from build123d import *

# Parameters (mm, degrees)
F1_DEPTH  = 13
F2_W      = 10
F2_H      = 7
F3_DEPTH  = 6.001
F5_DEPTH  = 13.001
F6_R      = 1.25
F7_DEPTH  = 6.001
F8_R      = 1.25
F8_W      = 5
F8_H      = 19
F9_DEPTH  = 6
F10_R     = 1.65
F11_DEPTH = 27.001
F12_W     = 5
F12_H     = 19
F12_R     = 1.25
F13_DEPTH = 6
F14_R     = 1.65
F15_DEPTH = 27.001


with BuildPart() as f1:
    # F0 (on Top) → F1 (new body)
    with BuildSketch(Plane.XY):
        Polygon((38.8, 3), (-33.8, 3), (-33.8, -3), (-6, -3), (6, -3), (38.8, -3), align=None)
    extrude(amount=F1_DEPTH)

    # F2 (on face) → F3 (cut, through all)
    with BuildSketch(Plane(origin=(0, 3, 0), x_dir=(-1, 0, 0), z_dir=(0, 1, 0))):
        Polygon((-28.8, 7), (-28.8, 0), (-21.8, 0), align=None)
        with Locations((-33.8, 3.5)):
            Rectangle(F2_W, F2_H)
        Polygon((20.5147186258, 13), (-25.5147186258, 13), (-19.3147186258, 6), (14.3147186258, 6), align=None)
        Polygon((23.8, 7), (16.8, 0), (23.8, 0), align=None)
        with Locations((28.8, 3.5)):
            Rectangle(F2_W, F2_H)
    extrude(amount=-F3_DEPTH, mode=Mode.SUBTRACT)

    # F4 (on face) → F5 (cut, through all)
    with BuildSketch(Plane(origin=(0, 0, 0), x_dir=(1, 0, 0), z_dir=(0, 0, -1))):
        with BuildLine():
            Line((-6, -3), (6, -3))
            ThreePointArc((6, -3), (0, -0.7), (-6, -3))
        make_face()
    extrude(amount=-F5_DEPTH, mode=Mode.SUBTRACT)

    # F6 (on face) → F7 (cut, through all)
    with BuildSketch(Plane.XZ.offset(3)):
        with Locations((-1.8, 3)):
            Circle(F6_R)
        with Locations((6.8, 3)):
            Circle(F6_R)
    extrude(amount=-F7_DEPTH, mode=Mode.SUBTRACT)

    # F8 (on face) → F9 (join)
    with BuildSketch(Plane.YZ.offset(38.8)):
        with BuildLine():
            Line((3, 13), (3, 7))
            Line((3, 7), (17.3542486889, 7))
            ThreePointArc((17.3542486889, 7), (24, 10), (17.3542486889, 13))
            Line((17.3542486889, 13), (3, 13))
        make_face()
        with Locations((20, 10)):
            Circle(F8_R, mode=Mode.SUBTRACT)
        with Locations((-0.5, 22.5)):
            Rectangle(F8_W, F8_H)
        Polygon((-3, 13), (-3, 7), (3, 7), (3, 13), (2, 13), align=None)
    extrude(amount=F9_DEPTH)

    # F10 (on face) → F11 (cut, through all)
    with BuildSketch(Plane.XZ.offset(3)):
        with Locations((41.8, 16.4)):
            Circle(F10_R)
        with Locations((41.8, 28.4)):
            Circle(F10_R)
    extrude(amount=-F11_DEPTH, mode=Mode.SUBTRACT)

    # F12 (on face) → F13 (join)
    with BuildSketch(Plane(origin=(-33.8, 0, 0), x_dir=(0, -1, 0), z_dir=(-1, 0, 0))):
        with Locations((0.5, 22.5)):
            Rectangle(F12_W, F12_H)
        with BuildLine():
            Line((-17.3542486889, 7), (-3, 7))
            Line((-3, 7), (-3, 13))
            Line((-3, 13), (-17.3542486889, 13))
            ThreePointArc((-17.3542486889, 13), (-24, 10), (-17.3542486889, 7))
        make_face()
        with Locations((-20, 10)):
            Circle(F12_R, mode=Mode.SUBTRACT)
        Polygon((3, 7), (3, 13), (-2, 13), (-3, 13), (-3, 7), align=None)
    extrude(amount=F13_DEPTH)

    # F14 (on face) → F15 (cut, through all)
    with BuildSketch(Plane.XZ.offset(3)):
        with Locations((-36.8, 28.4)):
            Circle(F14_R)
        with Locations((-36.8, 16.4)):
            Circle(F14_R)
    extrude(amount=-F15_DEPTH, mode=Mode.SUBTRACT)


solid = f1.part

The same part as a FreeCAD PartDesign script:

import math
import FreeCAD as App
import Part
import Sketcher

V = App.Vector
Q = App.Units.Quantity


def add_polygon(sketch, points):
    """Adds a closed chain of lines whose ends are joined by coincident constraints."""
    first, n = sketch.GeometryCount, len(points)
    for a, b in zip(points, points[1:] + points[:1]):
        sketch.addGeometry(Part.LineSegment(App.Vector(*a, 0), App.Vector(*b, 0)), False)
    for i in range(n):
        sketch.addConstraint(Sketcher.Constraint("Coincident", first + i, 2, first + (i + 1) % n, 1))

doc = App.newDocument("Part")
params = doc.addObject("Spreadsheet::Sheet", "Params")
for row, (alias, value) in enumerate([
    ("sketch1_height", "6 mm"),
    ("sketch1_width", "72.6 mm"),
    ("pad1_length", "13 mm"),
    ("sketch2_width", "10 mm"),
    ("sketch2_width2", "17 mm"),
    ("sketch3_width", "12 mm"),
    ("sketch4_diameter", "2.5 mm"),
    ("sketch5_radius", "4 mm"),
    ("sketch5_diameter", "2.5 mm"),
    ("sketch5_width", "5 mm"),
    ("sketch5_height", "19 mm"),
    ("sketch5_height2", "25 mm"),
    ("pad2_length", "6 mm"),
    ("sketch6_diameter", "3.3 mm"),
    ("sketch7_radius", "4 mm"),
    ("sketch7_diameter", "2.5 mm"),
    ("sketch7_width", "5 mm"),
    ("sketch7_height", "19 mm"),
    ("sketch7_height2", "25 mm"),
    ("pad3_length", "6 mm"),
    ("sketch8_diameter", "3.3 mm"),
], start=1):
    params.set(f"A{row}", alias)
    params.set(f"B{row}", "=" + value)
    params.setAlias(f"B{row}", alias)

body = doc.addObject("PartDesign::Body", "Body")

# Sketch on XY plane
sketch1 = doc.addObject("Sketcher::SketchObject", "Sketch")
body.addObject(sketch1)
sketch1.AttachmentSupport = (doc.XY_Plane, [""])
sketch1.MapMode = "FlatFace"
add_polygon(sketch1, [(38.8, 3), (-33.8, 3), (-33.8, -3), (38.8, -3)])  # lines 0-3
sketch1.addConstraint(Sketcher.Constraint("Horizontal", 0))
sketch1.addConstraint(Sketcher.Constraint("Vertical", 1))
sketch1.addConstraint(Sketcher.Constraint("Horizontal", 2))
sketch1.addConstraint(Sketcher.Constraint("Vertical", 3))
sketch1.addConstraint(Sketcher.Constraint("DistanceY", 1, 2, 1, 1, Q("6 mm")))
sketch1.addConstraint(Sketcher.Constraint("DistanceX", 0, 2, 0, 1, Q("72.6 mm")))
sketch1.addConstraint(Sketcher.Constraint("DistanceY", -1, 1, 0, 2, Q("3 mm")))
sketch1.addConstraint(Sketcher.Constraint("DistanceX", 0, 2, -1, 1, Q("33.8 mm")))
sketch1.setExpression("Constraints[8]", "Params.sketch1_height")
sketch1.setExpression("Constraints[9]", "Params.sketch1_width")
pad1 = doc.addObject("PartDesign::Pad", "Pad")
body.addObject(pad1)
pad1.Profile = sketch1
pad1.setExpression("Length", "Params.pad1_length")

# Sketch on XZ plane
sketch2 = doc.addObject("Sketcher::SketchObject", "Sketch001")
body.addObject(sketch2)
sketch2.AttachmentSupport = (doc.XZ_Plane, [""])
sketch2.MapMode = "FlatFace"
sketch2.AttachmentOffset = App.Placement(V(0, 0, -3), App.Rotation())
add_polygon(sketch2, [(21.8, 0), (28.8, 7), (38.8, 7), (38.8, 0)])  # lines 0-3
add_polygon(sketch2, [(-20.514719, 13), (25.514719, 13), (19.314719, 6), (-14.314719, 6)])  # lines 4-7
add_polygon(sketch2, [(-23.8, 7), (-16.8, 0), (-33.8, 0), (-33.8, 7)])  # lines 8-11
sketch2.addConstraint(Sketcher.Constraint("Horizontal", 1))
sketch2.addConstraint(Sketcher.Constraint("Vertical", 2))
sketch2.addConstraint(Sketcher.Constraint("Horizontal", 3))
sketch2.addConstraint(Sketcher.Constraint("Horizontal", 4))
sketch2.addConstraint(Sketcher.Constraint("Horizontal", 6))
sketch2.addConstraint(Sketcher.Constraint("Horizontal", 9))
sketch2.addConstraint(Sketcher.Constraint("Vertical", 10))
sketch2.addConstraint(Sketcher.Constraint("Horizontal", 11))
sketch2.addConstraint(Sketcher.Constraint("PointOnObject", 2, 2, -1))
sketch2.addConstraint(Sketcher.Constraint("PointOnObject", 8, 2, -1))
sketch2.addConstraint(Sketcher.Constraint("Perpendicular", 0, 8))
sketch2.addConstraint(Sketcher.Constraint("Horizontal", 1, 2, 10, 2))
sketch2.addConstraint(Sketcher.Constraint("Equal", 3, 9))
sketch2.addConstraint(Sketcher.Constraint("Equal", 1, 11))
sketch2.addConstraint(Sketcher.Constraint("Equal", 5, 7))
sketch2.addConstraint(Sketcher.Constraint("DistanceX", 1, 1, 1, 2, Q("10 mm")))
sketch2.addConstraint(Sketcher.Constraint("DistanceX", 3, 2, 3, 1, Q("17 mm")))
sketch2.addConstraint(Sketcher.Constraint("DistanceY", -1, 1, 4, 2, Q("13 mm")))
sketch2.addConstraint(Sketcher.Constraint("DistanceY", -1, 1, 5, 2, Q("6 mm")))
sketch2.addConstraint(Sketcher.Constraint("DistanceX", -1, 1, 0, 2, Q("28.8 mm")))
sketch2.addConstraint(Sketcher.Constraint("DistanceX", 8, 2, -1, 1, Q("16.8 mm")))
sketch2.addConstraint(Sketcher.Constraint("DistanceX", 5, 2, 4, 2, Q("6.2 mm")))
sketch2.addConstraint(Sketcher.Constraint("DistanceX", 4, 1, 4, 2, Q("46.029437 mm")))
sketch2.addConstraint(Sketcher.Constraint("DistanceX", -1, 1, 4, 2, Q("25.514719 mm")))
sketch2.setExpression("Constraints[27]", "Params.sketch2_width")
sketch2.setExpression("Constraints[28]", "Params.sketch2_width2")
pocket1 = doc.addObject("PartDesign::Pocket", "Pocket")
body.addObject(pocket1)
pocket1.Profile = sketch2
pocket1.Type = "ThroughAll"
pocket1.Reversed = True

# Sketch on XY plane
sketch3 = doc.addObject("Sketcher::SketchObject", "Sketch002")
body.addObject(sketch3)
sketch3.AttachmentSupport = (doc.XY_Plane, [""])
sketch3.MapMode = "FlatFace"
sketch3.addGeometry(Part.LineSegment(V(-6, 3, 0), V(6, 3, 0)), False)
sketch3.addGeometry(Part.ArcOfCircle(Part.Circle(V(0, 9.676087, 0), V(0, 0, 1), 8.976087), math.radians(-131.946987), math.radians(-48.053013)), False)
sketch3.addConstraint(Sketcher.Constraint("Coincident", 0, 1, 1, 1))
sketch3.addConstraint(Sketcher.Constraint("Coincident", 1, 2, 0, 2))
sketch3.addConstraint(Sketcher.Constraint("Horizontal", 0))
sketch3.addConstraint(Sketcher.Constraint("PointOnObject", 1, 3, -2))
sketch3.addConstraint(Sketcher.Constraint("DistanceX", 0, 1, 0, 2, Q("12 mm")))
sketch3.addConstraint(Sketcher.Constraint("DistanceY", -1, 1, 0, 1, Q("3 mm")))
sketch3.addConstraint(Sketcher.Constraint("Radius", 1, Q("8.976087 mm")))
sketch3.setExpression("Constraints[4]", "Params.sketch3_width")
pocket2 = doc.addObject("PartDesign::Pocket", "Pocket001")
body.addObject(pocket2)
pocket2.Profile = sketch3
pocket2.Type = "ThroughAll"
pocket2.Reversed = True

# Sketch on XZ plane
sketch4 = doc.addObject("Sketcher::SketchObject", "Sketch003")
body.addObject(sketch4)
sketch4.AttachmentSupport = (doc.XZ_Plane, [""])
sketch4.MapMode = "FlatFace"
sketch4.AttachmentOffset = App.Placement(V(0, 0, 3), App.Rotation())
sketch4.addGeometry(Part.Circle(V(-1.8, 3, 0), V(0, 0, 1), 1.25), False)
sketch4.addGeometry(Part.Circle(V(6.8, 3, 0), V(0, 0, 1), 1.25), False)
sketch4.addConstraint(Sketcher.Constraint("Equal", 0, 1))
sketch4.addConstraint(Sketcher.Constraint("Horizontal", 0, 3, 1, 3))
sketch4.addConstraint(Sketcher.Constraint("Diameter", 0, Q("2.5 mm")))
sketch4.addConstraint(Sketcher.Constraint("DistanceY", -1, 1, 0, 3, Q("3 mm")))
sketch4.addConstraint(Sketcher.Constraint("DistanceX", 0, 3, -1, 1, Q("1.8 mm")))
sketch4.addConstraint(Sketcher.Constraint("DistanceX", -1, 1, 1, 3, Q("6.8 mm")))
sketch4.setExpression("Constraints[2]", "Params.sketch4_diameter")
pocket3 = doc.addObject("PartDesign::Pocket", "Pocket002")
body.addObject(pocket3)
pocket3.Profile = sketch4
pocket3.Type = "ThroughAll"

# Sketch on YZ plane
sketch5 = doc.addObject("Sketcher::SketchObject", "Sketch004")
body.addObject(sketch5)
sketch5.AttachmentSupport = (doc.YZ_Plane, [""])
sketch5.MapMode = "FlatFace"
sketch5.AttachmentOffset = App.Placement(V(0, 0, 38.8), App.Rotation())
sketch5.addGeometry(Part.LineSegment(V(17.354249, 13, 0), V(2, 13, 0)), False)
sketch5.addGeometry(Part.LineSegment(V(2, 13, 0), V(2, 32, 0)), False)
sketch5.addGeometry(Part.LineSegment(V(2, 32, 0), V(-3, 32, 0)), False)
sketch5.addGeometry(Part.LineSegment(V(-3, 32, 0), V(-3, 7, 0)), False)
sketch5.addGeometry(Part.LineSegment(V(-3, 7, 0), V(17.354249, 7, 0)), False)
sketch5.addGeometry(Part.ArcOfCircle(Part.Circle(V(20, 10, 0), V(0, 0, 1), 4), math.radians(-131.409622), math.radians(131.409622)), False)
sketch5.addGeometry(Part.Circle(V(20, 10, 0), V(0, 0, 1), 1.25), False)
sketch5.addConstraint(Sketcher.Constraint("Coincident", 0, 2, 1, 1))
sketch5.addConstraint(Sketcher.Constraint("Coincident", 1, 2, 2, 1))
sketch5.addConstraint(Sketcher.Constraint("Coincident", 2, 2, 3, 1))
sketch5.addConstraint(Sketcher.Constraint("Coincident", 3, 2, 4, 1))
sketch5.addConstraint(Sketcher.Constraint("Coincident", 4, 2, 5, 1))
sketch5.addConstraint(Sketcher.Constraint("Coincident", 5, 2, 0, 1))
sketch5.addConstraint(Sketcher.Constraint("Horizontal", 0))
sketch5.addConstraint(Sketcher.Constraint("Vertical", 1))
sketch5.addConstraint(Sketcher.Constraint("Horizontal", 2))
sketch5.addConstraint(Sketcher.Constraint("Vertical", 3))
sketch5.addConstraint(Sketcher.Constraint("Horizontal", 4))
sketch5.addConstraint(Sketcher.Constraint("Coincident", 6, 3, 5, 3))
sketch5.addConstraint(Sketcher.Constraint("Vertical", 4, 2, 5, 2))
sketch5.addConstraint(Sketcher.Constraint("Radius", 5, Q("4 mm")))
sketch5.addConstraint(Sketcher.Constraint("Diameter", 6, Q("2.5 mm")))
sketch5.addConstraint(Sketcher.Constraint("DistanceX", 2, 2, 2, 1, Q("5 mm")))
sketch5.addConstraint(Sketcher.Constraint("DistanceY", 1, 1, 1, 2, Q("19 mm")))
sketch5.addConstraint(Sketcher.Constraint("DistanceY", 3, 2, 3, 1, Q("25 mm")))
sketch5.addConstraint(Sketcher.Constraint("DistanceX", -1, 1, 5, 3, Q("20 mm")))
sketch5.addConstraint(Sketcher.Constraint("DistanceY", -1, 1, 5, 3, Q("10 mm")))
sketch5.addConstraint(Sketcher.Constraint("DistanceX", -1, 1, 0, 2, Q("2 mm")))
sketch5.setExpression("Constraints[13]", "Params.sketch5_radius")
sketch5.setExpression("Constraints[14]", "Params.sketch5_diameter")
sketch5.setExpression("Constraints[15]", "Params.sketch5_width")
sketch5.setExpression("Constraints[16]", "Params.sketch5_height")
sketch5.setExpression("Constraints[17]", "Params.sketch5_height2")
pad2 = doc.addObject("PartDesign::Pad", "Pad001")
body.addObject(pad2)
pad2.Profile = sketch5
pad2.setExpression("Length", "Params.pad2_length")

# Sketch on XZ plane
sketch6 = doc.addObject("Sketcher::SketchObject", "Sketch005")
body.addObject(sketch6)
sketch6.AttachmentSupport = (doc.XZ_Plane, [""])
sketch6.MapMode = "FlatFace"
sketch6.AttachmentOffset = App.Placement(V(0, 0, 3), App.Rotation())
sketch6.addGeometry(Part.Circle(V(41.8, 16.4, 0), V(0, 0, 1), 1.65), False)
sketch6.addGeometry(Part.Circle(V(41.8, 28.4, 0), V(0, 0, 1), 1.65), False)
sketch6.addConstraint(Sketcher.Constraint("Equal", 0, 1))
sketch6.addConstraint(Sketcher.Constraint("Vertical", 0, 3, 1, 3))
sketch6.addConstraint(Sketcher.Constraint("Diameter", 0, Q("3.3 mm")))
sketch6.addConstraint(Sketcher.Constraint("DistanceY", 0, 3, 1, 3, Q("12 mm")))
sketch6.addConstraint(Sketcher.Constraint("DistanceX", -1, 1, 0, 3, Q("41.8 mm")))
sketch6.addConstraint(Sketcher.Constraint("DistanceY", -1, 1, 0, 3, Q("16.4 mm")))
sketch6.setExpression("Constraints[2]", "Params.sketch6_diameter")
pocket4 = doc.addObject("PartDesign::Pocket", "Pocket003")
body.addObject(pocket4)
pocket4.Profile = sketch6
pocket4.Type = "ThroughAll"

# Sketch on YZ plane
sketch7 = doc.addObject("Sketcher::SketchObject", "Sketch006")
body.addObject(sketch7)
sketch7.AttachmentSupport = (doc.YZ_Plane, [""])
sketch7.MapMode = "FlatFace"
sketch7.AttachmentOffset = App.Placement(V(0, 0, -33.8), App.Rotation())
sketch7.addGeometry(Part.LineSegment(V(2, 32, 0), V(2, 13, 0)), False)
sketch7.addGeometry(Part.LineSegment(V(2, 13, 0), V(17.354249, 13, 0)), False)
sketch7.addGeometry(Part.ArcOfCircle(Part.Circle(V(20, 10, 0), V(0, 0, 1), 4), math.radians(-131.409622), math.radians(131.409622)), False)
sketch7.addGeometry(Part.LineSegment(V(17.354249, 7, 0), V(-3, 7, 0)), False)
sketch7.addGeometry(Part.LineSegment(V(-3, 7, 0), V(-3, 32, 0)), False)
sketch7.addGeometry(Part.LineSegment(V(-3, 32, 0), V(2, 32, 0)), False)
sketch7.addGeometry(Part.Circle(V(20, 10, 0), V(0, 0, 1), 1.25), False)
sketch7.addConstraint(Sketcher.Constraint("Coincident", 0, 2, 1, 1))
sketch7.addConstraint(Sketcher.Constraint("Coincident", 1, 2, 2, 2))
sketch7.addConstraint(Sketcher.Constraint("Coincident", 2, 1, 3, 1))
sketch7.addConstraint(Sketcher.Constraint("Coincident", 3, 2, 4, 1))
sketch7.addConstraint(Sketcher.Constraint("Coincident", 4, 2, 5, 1))
sketch7.addConstraint(Sketcher.Constraint("Coincident", 5, 2, 0, 1))
sketch7.addConstraint(Sketcher.Constraint("Vertical", 0))
sketch7.addConstraint(Sketcher.Constraint("Horizontal", 1))
sketch7.addConstraint(Sketcher.Constraint("Horizontal", 3))
sketch7.addConstraint(Sketcher.Constraint("Vertical", 4))
sketch7.addConstraint(Sketcher.Constraint("Horizontal", 5))
sketch7.addConstraint(Sketcher.Constraint("Coincident", 6, 3, 2, 3))
sketch7.addConstraint(Sketcher.Constraint("Vertical", 1, 2, 2, 1))
sketch7.addConstraint(Sketcher.Constraint("Radius", 2, Q("4 mm")))
sketch7.addConstraint(Sketcher.Constraint("Diameter", 6, Q("2.5 mm")))
sketch7.addConstraint(Sketcher.Constraint("DistanceX", 5, 1, 5, 2, Q("5 mm")))
sketch7.addConstraint(Sketcher.Constraint("DistanceY", 0, 2, 0, 1, Q("19 mm")))
sketch7.addConstraint(Sketcher.Constraint("DistanceY", 4, 1, 4, 2, Q("25 mm")))
sketch7.addConstraint(Sketcher.Constraint("DistanceX", -1, 1, 2, 3, Q("20 mm")))
sketch7.addConstraint(Sketcher.Constraint("DistanceY", -1, 1, 2, 3, Q("10 mm")))
sketch7.addConstraint(Sketcher.Constraint("DistanceX", -1, 1, 0, 2, Q("2 mm")))
sketch7.setExpression("Constraints[13]", "Params.sketch7_radius")
sketch7.setExpression("Constraints[14]", "Params.sketch7_diameter")
sketch7.setExpression("Constraints[15]", "Params.sketch7_width")
sketch7.setExpression("Constraints[16]", "Params.sketch7_height")
sketch7.setExpression("Constraints[17]", "Params.sketch7_height2")
pad3 = doc.addObject("PartDesign::Pad", "Pad002")
body.addObject(pad3)
pad3.Profile = sketch7
pad3.setExpression("Length", "Params.pad3_length")
pad3.Reversed = True

# Sketch on XZ plane
sketch8 = doc.addObject("Sketcher::SketchObject", "Sketch007")
body.addObject(sketch8)
sketch8.AttachmentSupport = (doc.XZ_Plane, [""])
sketch8.MapMode = "FlatFace"
sketch8.AttachmentOffset = App.Placement(V(0, 0, 3), App.Rotation())
sketch8.addGeometry(Part.Circle(V(-36.8, 28.4, 0), V(0, 0, 1), 1.65), False)
sketch8.addGeometry(Part.Circle(V(-36.8, 16.4, 0), V(0, 0, 1), 1.65), False)
sketch8.addConstraint(Sketcher.Constraint("Equal", 0, 1))
sketch8.addConstraint(Sketcher.Constraint("Vertical", 0, 3, 1, 3))
sketch8.addConstraint(Sketcher.Constraint("Diameter", 0, Q("3.3 mm")))
sketch8.addConstraint(Sketcher.Constraint("DistanceY", 1, 3, 0, 3, Q("12 mm")))
sketch8.addConstraint(Sketcher.Constraint("DistanceX", 0, 3, -1, 1, Q("36.8 mm")))
sketch8.addConstraint(Sketcher.Constraint("DistanceY", -1, 1, 0, 3, Q("28.4 mm")))
sketch8.setExpression("Constraints[2]", "Params.sketch8_diameter")
pocket5 = doc.addObject("PartDesign::Pocket", "Pocket004")
body.addObject(pocket5)
pocket5.Profile = sketch8
pocket5.Type = "ThroughAll"

doc.recompute()
